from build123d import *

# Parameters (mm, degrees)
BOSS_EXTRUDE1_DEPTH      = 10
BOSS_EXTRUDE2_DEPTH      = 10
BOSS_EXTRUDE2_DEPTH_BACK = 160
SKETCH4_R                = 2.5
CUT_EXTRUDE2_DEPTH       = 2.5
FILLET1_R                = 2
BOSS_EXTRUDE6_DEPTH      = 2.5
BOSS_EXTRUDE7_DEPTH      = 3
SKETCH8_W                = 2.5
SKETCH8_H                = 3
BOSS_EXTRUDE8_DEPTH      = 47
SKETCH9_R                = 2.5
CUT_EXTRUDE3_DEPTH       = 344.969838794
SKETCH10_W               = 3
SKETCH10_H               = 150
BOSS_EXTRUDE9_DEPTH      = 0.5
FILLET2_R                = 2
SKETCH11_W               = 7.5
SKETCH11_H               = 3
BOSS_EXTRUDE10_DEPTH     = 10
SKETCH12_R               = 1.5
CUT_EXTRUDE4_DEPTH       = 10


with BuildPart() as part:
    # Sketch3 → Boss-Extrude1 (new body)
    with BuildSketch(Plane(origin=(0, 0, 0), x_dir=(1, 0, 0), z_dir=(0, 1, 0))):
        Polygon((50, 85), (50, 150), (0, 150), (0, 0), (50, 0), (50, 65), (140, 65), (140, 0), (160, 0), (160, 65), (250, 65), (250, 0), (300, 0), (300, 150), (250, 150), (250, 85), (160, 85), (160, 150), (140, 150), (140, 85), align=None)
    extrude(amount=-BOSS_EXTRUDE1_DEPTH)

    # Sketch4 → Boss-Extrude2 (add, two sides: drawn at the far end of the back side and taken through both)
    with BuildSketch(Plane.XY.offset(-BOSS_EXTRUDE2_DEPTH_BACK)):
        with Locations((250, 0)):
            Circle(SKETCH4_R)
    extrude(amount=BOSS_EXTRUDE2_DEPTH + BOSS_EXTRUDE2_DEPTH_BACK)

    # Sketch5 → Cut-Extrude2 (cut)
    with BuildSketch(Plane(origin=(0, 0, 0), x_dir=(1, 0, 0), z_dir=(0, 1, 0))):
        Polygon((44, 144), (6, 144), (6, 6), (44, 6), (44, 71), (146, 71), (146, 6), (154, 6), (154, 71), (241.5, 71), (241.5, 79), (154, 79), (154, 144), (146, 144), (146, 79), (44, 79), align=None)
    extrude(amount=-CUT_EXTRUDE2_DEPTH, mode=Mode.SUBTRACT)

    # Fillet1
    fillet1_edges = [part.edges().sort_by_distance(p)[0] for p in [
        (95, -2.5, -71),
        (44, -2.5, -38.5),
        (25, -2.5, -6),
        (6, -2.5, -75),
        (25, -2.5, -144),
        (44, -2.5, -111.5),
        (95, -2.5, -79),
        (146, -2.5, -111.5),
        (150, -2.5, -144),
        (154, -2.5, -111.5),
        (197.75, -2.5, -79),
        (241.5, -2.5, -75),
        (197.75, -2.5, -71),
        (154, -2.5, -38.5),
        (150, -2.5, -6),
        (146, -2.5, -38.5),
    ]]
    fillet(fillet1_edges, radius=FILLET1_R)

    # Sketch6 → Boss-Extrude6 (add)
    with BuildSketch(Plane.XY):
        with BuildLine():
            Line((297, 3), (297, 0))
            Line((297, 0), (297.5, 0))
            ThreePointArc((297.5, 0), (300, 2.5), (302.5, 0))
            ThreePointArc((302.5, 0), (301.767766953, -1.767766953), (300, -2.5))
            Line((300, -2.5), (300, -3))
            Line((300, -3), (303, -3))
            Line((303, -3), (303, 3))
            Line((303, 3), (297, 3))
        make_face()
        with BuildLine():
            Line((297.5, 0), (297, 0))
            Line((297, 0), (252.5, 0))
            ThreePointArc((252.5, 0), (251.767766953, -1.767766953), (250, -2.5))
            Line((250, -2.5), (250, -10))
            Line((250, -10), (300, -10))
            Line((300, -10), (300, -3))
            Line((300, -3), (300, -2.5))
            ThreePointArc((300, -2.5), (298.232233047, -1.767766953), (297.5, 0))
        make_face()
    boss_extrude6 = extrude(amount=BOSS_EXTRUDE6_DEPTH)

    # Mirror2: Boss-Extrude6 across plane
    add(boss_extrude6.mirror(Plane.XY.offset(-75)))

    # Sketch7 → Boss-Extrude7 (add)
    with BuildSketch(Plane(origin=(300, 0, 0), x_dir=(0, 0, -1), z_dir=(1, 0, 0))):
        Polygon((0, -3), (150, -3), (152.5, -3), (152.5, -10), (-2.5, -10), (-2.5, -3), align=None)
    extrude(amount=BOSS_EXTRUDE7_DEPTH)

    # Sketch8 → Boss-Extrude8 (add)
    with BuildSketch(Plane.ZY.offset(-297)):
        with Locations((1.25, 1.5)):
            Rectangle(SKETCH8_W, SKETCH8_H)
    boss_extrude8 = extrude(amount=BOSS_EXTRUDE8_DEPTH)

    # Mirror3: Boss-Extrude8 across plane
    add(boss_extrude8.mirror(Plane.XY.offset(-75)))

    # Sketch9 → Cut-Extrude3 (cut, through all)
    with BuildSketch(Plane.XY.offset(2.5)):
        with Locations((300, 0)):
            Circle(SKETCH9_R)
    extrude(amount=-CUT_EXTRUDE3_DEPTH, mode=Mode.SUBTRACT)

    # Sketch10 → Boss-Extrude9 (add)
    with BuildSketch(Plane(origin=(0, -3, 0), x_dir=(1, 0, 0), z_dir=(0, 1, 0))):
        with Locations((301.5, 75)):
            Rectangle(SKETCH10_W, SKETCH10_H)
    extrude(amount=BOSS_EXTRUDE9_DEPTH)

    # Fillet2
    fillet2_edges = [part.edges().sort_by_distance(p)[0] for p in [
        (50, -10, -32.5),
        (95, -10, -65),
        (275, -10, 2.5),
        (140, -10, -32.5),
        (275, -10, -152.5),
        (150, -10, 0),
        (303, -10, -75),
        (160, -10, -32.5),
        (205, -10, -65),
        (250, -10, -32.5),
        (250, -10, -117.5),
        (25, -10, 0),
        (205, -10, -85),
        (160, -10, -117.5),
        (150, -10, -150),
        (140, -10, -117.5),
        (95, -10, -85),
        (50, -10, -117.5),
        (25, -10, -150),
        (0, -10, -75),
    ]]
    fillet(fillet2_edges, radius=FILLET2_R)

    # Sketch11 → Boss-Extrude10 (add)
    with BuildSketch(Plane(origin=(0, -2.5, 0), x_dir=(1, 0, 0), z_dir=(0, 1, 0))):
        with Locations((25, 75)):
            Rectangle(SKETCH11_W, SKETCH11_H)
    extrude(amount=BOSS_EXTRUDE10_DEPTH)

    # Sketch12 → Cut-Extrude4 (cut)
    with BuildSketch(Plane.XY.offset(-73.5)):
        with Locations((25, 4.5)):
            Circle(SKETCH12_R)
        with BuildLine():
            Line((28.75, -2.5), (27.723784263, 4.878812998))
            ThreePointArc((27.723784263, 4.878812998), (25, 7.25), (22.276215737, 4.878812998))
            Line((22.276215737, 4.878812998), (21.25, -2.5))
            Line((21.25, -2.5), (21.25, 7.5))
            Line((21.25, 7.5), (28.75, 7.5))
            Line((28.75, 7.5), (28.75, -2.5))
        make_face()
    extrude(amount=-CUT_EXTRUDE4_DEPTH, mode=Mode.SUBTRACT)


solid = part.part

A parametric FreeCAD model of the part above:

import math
import FreeCAD as App
import Part
import Sketcher

V = App.Vector


def edges_at(feature, points):
    """Names of the edges that pass closest to the given points."""
    edges = feature.Shape.Edges
    near = lambda p: min(range(len(edges)), key=lambda i: edges[i].distToShape(Part.Vertex(*p))[0])
    return sorted({f"Edge{near(p) + 1}" for p in points})


def add_polygon(sketch, points):
    """Adds a closed chain of lines whose ends are joined by coincident constraints."""
    first, n = sketch.GeometryCount, len(points)
    for a, b in zip(points, points[1:] + points[:1]):
        sketch.addGeometry(Part.LineSegment(App.Vector(*a, 0), App.Vector(*b, 0)), False)
    for i in range(n):
        sketch.addConstraint(Sketcher.Constraint("Coincident", first + i, 2, first + (i + 1) % n, 1))

doc = App.newDocument("Part")
body = doc.addObject("PartDesign::Body", "Body")

sketch1 = doc.addObject("Sketcher::SketchObject", "Sketch")
body.addObject(sketch1)
sketch1.AttachmentSupport = (doc.XZ_Plane, [""])
sketch1.MapMode = "FlatFace"
add_polygon(sketch1, [(50, -85), (50, -150), (0, -150), (0, 0), (50, 0), (50, -65), (140, -65), (140, 0), (160, 0), (160, -65), (250, -65), (250, 0), (300, 0), (300, -150), (250, -150), (250, -85), (160, -85), (160, -150), (140, -150), (140, -85)])
sketch1.addConstraint([
    Sketcher.Constraint("Vertical", 0),
    Sketcher.Constraint("Horizontal", 1),
    Sketcher.Constraint("Vertical", 2),
    Sketcher.Constraint("Horizontal", 3),
    Sketcher.Constraint("Vertical", 4),
    Sketcher.Constraint("Horizontal", 5),
    Sketcher.Constraint("Vertical", 6),
    Sketcher.Constraint("Horizontal", 7),
    Sketcher.Constraint("Vertical", 8),
    Sketcher.Constraint("Horizontal", 9),
    Sketcher.Constraint("Vertical", 10),
    Sketcher.Constraint("Horizontal", 11),
    Sketcher.Constraint("Vertical", 12),
    Sketcher.Constraint("Horizontal", 13),
    Sketcher.Constraint("Vertical", 14),
    Sketcher.Constraint("Horizontal", 15),
    Sketcher.Constraint("Vertical", 16),
    Sketcher.Constraint("Horizontal", 17),
    Sketcher.Constraint("Vertical", 18),
    Sketcher.Constraint("Horizontal", 19),
    Sketcher.Constraint("Coincident", 2, 2, -1, 1),
    Sketcher.Constraint("PointOnObject", 6, 2, -1),
    Sketcher.Constraint("PointOnObject", 10, 2, -1),
    Sketcher.Constraint("Horizontal", 5, 2, 8, 2),
    Sketcher.Constraint("Horizontal", 1, 2, 12, 2),
    Sketcher.Constraint("Horizontal", 13, 2, 16, 2),
    Sketcher.Constraint("Horizontal", 15, 2, 18, 2),
    Sketcher.Constraint("Vertical", 0, 2, 3, 2),
    Sketcher.Constraint("Vertical", 10, 2, 13, 2),
    Sketcher.Constraint("Vertical", 8, 2, 15, 2),
    Sketcher.Constraint("Vertical", 6, 2, 17, 2),
    Sketcher.Constraint("Equal", 5, 9),
    Sketcher.Constraint("Equal", 3, 11),
    Sketcher.Constraint("Equal", 0, 4),
    Sketcher.Constraint("DistanceX", 1, 2, 1, 1, 50.0),
    Sketcher.Constraint("DistanceX", 5, 1, 5, 2, 90.0),
    Sketcher.Constraint("DistanceX", 7, 1, 7, 2, 20.0),
    Sketcher.Constraint("DistanceY", 0, 2, 0, 1, 65.0),
    Sketcher.Constraint("DistanceY", 2, 1, 2, 2, 150.0),
])
pad1 = doc.addObject("PartDesign::Pad", "Pad")
body.addObject(pad1)
pad1.Profile = sketch1
pad1.Length = 10

sketch2 = doc.addObject("Sketcher::SketchObject", "Sketch001")
body.addObject(sketch2)
sketch2.AttachmentSupport = (doc.XY_Plane, [""])
sketch2.MapMode = "FlatFace"
sketch2.addGeometry(Part.Circle(V(250, 0, 0), V(0, 0, 1), 2.5), False)
sketch2.addConstraint([
    Sketcher.Constraint("PointOnObject", 0, 3, -1),
    Sketcher.Constraint("Diameter", 0, 5.0),
    Sketcher.Constraint("DistanceX", -1, 1, 0, 3, 250.0),
])
pad2 = doc.addObject("PartDesign::Pad", "Pad001")
body.addObject(pad2)
pad2.Profile = sketch2
pad2.Type = "TwoLengths"
pad2.Length = 10
pad2.Length2 = 160

sketch3 = doc.addObject("Sketcher::SketchObject", "Sketch002")
body.addObject(sketch3)
sketch3.AttachmentSupport = (doc.XZ_Plane, [""])
sketch3.MapMode = "FlatFace"
add_polygon(sketch3, [(44, -144), (6, -144), (6, -6), (44, -6), (44, -71), (146, -71), (146, -6), (154, -6), (154, -71), (241.5, -71), (241.5, -79), (154, -79), (154, -144), (146, -144), (146, -79), (44, -79)])
sketch3.addConstraint([
    Sketcher.Constraint("Horizontal", 0),
    Sketcher.Constraint("Vertical", 1),
    Sketcher.Constraint("Horizontal", 2),
    Sketcher.Constraint("Vertical", 3),
    Sketcher.Constraint("Horizontal", 4),
    Sketcher.Constraint("Vertical", 5),
    Sketcher.Constraint("Horizontal", 6),
    Sketcher.Constraint("Vertical", 7),
    Sketcher.Constraint("Horizontal", 8),
    Sketcher.Constraint("Vertical", 9),
    Sketcher.Constraint("Horizontal", 10),
    Sketcher.Constraint("Vertical", 11),
    Sketcher.Constraint("Horizontal", 12),
    Sketcher.Constraint("Vertical", 13),
    Sketcher.Constraint("Horizontal", 14),
    Sketcher.Constraint("Vertical", 15),
    Sketcher.Constraint("Horizontal", 2, 2, 5, 2),
    Sketcher.Constraint("Horizontal", 4, 2, 7, 2),
    Sketcher.Constraint("Horizontal", 0, 2, 11, 2),
    Sketcher.Constraint("Horizontal", 10, 2, 13, 2),
    Sketcher.Constraint("Vertical", 7, 2, 10, 2),
    Sketcher.Constraint("Vertical", 5, 2, 12, 2),
    Sketcher.Constraint("Vertical", 3, 2, 14, 2),
    Sketcher.Constraint("Equal", 12, 9),
    Sketcher.Constraint("Equal", 7, 11),
    Sketcher.Constraint("DistanceX", 0, 2, 0, 1, 38.0),
    Sketcher.Constraint("DistanceX", 4, 1, 4, 2, 102.0),
    Sketcher.Constraint("DistanceX", 6, 1, 6, 2, 8.0),
    Sketcher.Constraint("DistanceY", 1, 1, 1, 2, 138.0),
    Sketcher.Constraint("DistanceX", 8, 1, 8, 2, 87.5),
    Sketcher.Constraint("DistanceX", -1, 1, 0, 2, 6.0),
    Sketcher.Constraint("DistanceY", 0, 2, -1, 1, 144.0),
])
pocket1 = doc.addObject("PartDesign::Pocket", "Pocket")
body.addObject(pocket1)
pocket1.Profile = sketch3
pocket1.Length = 2.5
pocket1.Reversed = True
doc.recompute()

fillet = doc.addObject("PartDesign::Fillet", "Fillet")
body.addObject(fillet)
fillet.Base = (pocket1, edges_at(pocket1, [
    (95, -2.5, -71),
    (44, -2.5, -38.5),
    (25, -2.5, -6),
    (6, -2.5, -75),
    (25, -2.5, -144),
    (44, -2.5, -111.5),
    (95, -2.5, -79),
    (146, -2.5, -111.5),
    (150, -2.5, -144),
    (154, -2.5, -111.5),
    (197.75, -2.5, -79),
    (241.5, -2.5, -75),
    (197.75, -2.5, -71),
    (154, -2.5, -38.5),
    (150, -2.5, -6),
    (146, -2.5, -38.5),
]))
fillet.Radius = 2

sketch4 = doc.addObject("Sketcher::SketchObject", "Sketch003")
body.addObject(sketch4)
sketch4.AttachmentSupport = (doc.XY_Plane, [""])
sketch4.MapMode = "FlatFace"
sketch4.addGeometry([
    Part.LineSegment(V(297, 3, 0), V(297, 0, 0)),
    Part.LineSegment(V(297, 0, 0), V(252.5, 0, 0)),
    Part.ArcOfCircle(Part.Circle(V(250, 0, 0), V(0, 0, 1), 2.5), math.radians(-90), math.radians(0)),
    Part.LineSegment(V(250, -2.5, 0), V(250, -10, 0)),
    Part.LineSegment(V(250, -10, 0), V(300, -10, 0)),
    Part.LineSegment(V(300, -10, 0), V(300, -3, 0)),
    Part.LineSegment(V(300, -3, 0), V(303, -3, 0)),
    Part.LineSegment(V(303, -3, 0), V(303, 3, 0)),
    Part.LineSegment(V(303, 3, 0), V(297, 3, 0)),
    Part.ArcOfCircle(Part.Circle(V(300, 0, 0), V(0, 0, 1), 2.5), math.radians(0), math.radians(180)),
    Part.ArcOfCircle(Part.Circle(V(300, 0, 0), V(0, 0, 1), 2.5), math.radians(-90), math.radians(0)),
    Part.ArcOfCircle(Part.Circle(V(300, 0, 0), V(0, 0, 1), 2.5), math.radians(180), math.radians(270)),
], False)
sketch4.addConstraint([
    Sketcher.Constraint("Coincident", 0, 2, 1, 1),
    Sketcher.Constraint("Coincident", 1, 2, 2, 2),
    Sketcher.Constraint("Coincident", 2, 1, 3, 1),
    Sketcher.Constraint("Coincident", 3, 2, 4, 1),
    Sketcher.Constraint("Coincident", 4, 2, 5, 1),
    Sketcher.Constraint("Coincident", 5, 2, 6, 1),
    Sketcher.Constraint("Coincident", 6, 2, 7, 1),
    Sketcher.Constraint("Coincident", 7, 2, 8, 1),
    Sketcher.Constraint("Coincident", 8, 2, 0, 1),
    Sketcher.Constraint("Tangent", 9, 1, 10, 2),
    Sketcher.Constraint("Tangent", 10, 1, 11, 2),
    Sketcher.Constraint("Tangent", 11, 1, 9, 2),
    Sketcher.Constraint("Vertical", 0),
    Sketcher.Constraint("Horizontal", 1),
    Sketcher.Constraint("Vertical", 3),
    Sketcher.Constraint("Horizontal", 4),
    Sketcher.Constraint("Vertical", 5),
    Sketcher.Constraint("Horizontal", 6),
    Sketcher.Constraint("Vertical", 7),
    Sketcher.Constraint("Horizontal", 8),
    Sketcher.Constraint("Equal", 2, 9),
    Sketcher.Constraint("PointOnObject", 2, 3, -1),
    Sketcher.Constraint("PointOnObject", 9, 3, -1),
    Sketcher.Constraint("PointOnObject", 0, 2, -1),
    Sketcher.Constraint("PointOnObject", 9, 1, -1),
    Sketcher.Constraint("PointOnObject", 11, 1, -1),
    Sketcher.Constraint("Vertical", 11, 3, 4, 2),
    Sketcher.Constraint("Vertical", 5, 2, 10, 1),
    Sketcher.Constraint("Equal", 6, 0),
    Sketcher.Constraint("Equal", 8, 7),
    Sketcher.Constraint("Radius", 2, 2.5),
    Sketcher.Constraint("DistanceX", 4, 1, 4, 2, 50.0),
    Sketcher.Constraint("DistanceX", 6, 1, 6, 2, 3.0),
    Sketcher.Constraint("DistanceX", 8, 2, 8, 1, 6.0),
    Sketcher.Constraint("DistanceY", 5, 1, 5, 2, 7.0),
    Sketcher.Constraint("DistanceX", 1, 2, 1, 1, 44.5),
    Sketcher.Constraint("DistanceX", -1, 1, 2, 3, 250.0),
])
pad3 = doc.addObject("PartDesign::Pad", "Pad002")
body.addObject(pad3)
pad3.Profile = sketch4
pad3.Length = 2.5
doc.recompute()

datumplane = doc.addObject("PartDesign::Plane", "DatumPlane")
body.addObject(datumplane)
datumplane.AttachmentSupport = (doc.XY_Plane, [""])
datumplane.MapMode = "FlatFace"
datumplane.AttachmentOffset = App.Placement(V(0, 0, -75), App.Rotation())
mirrored = doc.addObject("PartDesign::Mirrored", "Mirrored")
body.addObject(mirrored)
mirrored.Originals = [pad3]
mirrored.MirrorPlane = (datumplane, [""])
body.Tip = mirrored

sketch5 = doc.addObject("Sketcher::SketchObject", "Sketch004")
body.addObject(sketch5)
sketch5.AttachmentSupport = (doc.YZ_Plane, [""])
sketch5.MapMode = "FlatFace"
sketch5.AttachmentOffset = App.Placement(V(0, 0, 300), App.Rotation())
add_polygon(sketch5, [(-3, -152.5), (-3, 2.5), (-10, 2.5), (-10, -152.5)])
sketch5.addConstraint([
    Sketcher.Constraint("Vertical", 0),
    Sketcher.Constraint("Horizontal", 1),
    Sketcher.Constraint("Vertical", 2),
    Sketcher.Constraint("Horizontal", 3),
    Sketcher.Constraint("DistanceX", 1, 2, 1, 1, 7.0),
    Sketcher.Constraint("DistanceY", 0, 1, 0, 2, 155.0),
    Sketcher.Constraint("DistanceX", 0, 2, -1, 1, 3.0),
    Sketcher.Constraint("DistanceY", -1, 1, 0, 2, 2.5),
])
pad4 = doc.addObject("PartDesign::Pad", "Pad003")
body.addObject(pad4)
pad4.Profile = sketch5
pad4.Length = 3

sketch6 = doc.addObject("Sketcher::SketchObject", "Sketch005")
body.addObject(sketch6)
sketch6.AttachmentSupport = (doc.YZ_Plane, [""])
sketch6.MapMode = "FlatFace"
sketch6.AttachmentOffset = App.Placement(V(0, 0, 297), App.Rotation())
add_polygon(sketch6, [(3, 0), (0, 0), (0, 2.5), (3, 2.5)])
sketch6.addConstraint([
    Sketcher.Constraint("Horizontal", 0),
    Sketcher.Constraint("Vertical", 1),
    Sketcher.Constraint("Horizontal", 2),
    Sketcher.Constraint("Vertical", 3),
    Sketcher.Constraint("Coincident", 0, 2, -1, 1),
    Sketcher.Constraint("DistanceX", 0, 2, 0, 1, 3.0),
    Sketcher.Constraint("DistanceY", 1, 1, 1, 2, 2.5),
])
pad5 = doc.addObject("PartDesign::Pad", "Pad004")
body.addObject(pad5)
pad5.Profile = sketch6
pad5.Length = 47
pad5.Reversed = True
doc.recompute()

datumplane2 = doc.addObject("PartDesign::Plane", "DatumPlane001")
body.addObject(datumplane2)
datumplane2.AttachmentSupport = (doc.XY_Plane, [""])
datumplane2.MapMode = "FlatFace"
datumplane2.AttachmentOffset = App.Placement(V(0, 0, -75), App.Rotation())
mirrored2 = doc.addObject("PartDesign::Mirrored", "Mirrored001")
body.addObject(mirrored2)
mirrored2.Originals = [pad5]
mirrored2.MirrorPlane = (datumplane2, [""])
body.Tip = mirrored2

sketch7 = doc.addObject("Sketcher::SketchObject", "Sketch006")
body.addObject(sketch7)
sketch7.AttachmentSupport = (doc.XY_Plane, [""])
sketch7.MapMode = "FlatFace"
sketch7.AttachmentOffset = App.Placement(V(0, 0, 2.5), App.Rotation())
sketch7.addGeometry(Part.Circle(V(300, 0, 0), V(0, 0, 1), 2.5), False)
sketch7.addConstraint([
    Sketcher.Constraint("PointOnObject", 0, 3, -1),
    Sketcher.Constraint("Diameter", 0, 5.0),
    Sketcher.Constraint("DistanceX", -1, 1, 0, 3, 300.0),
])
pocket2 = doc.addObject("PartDesign::Pocket", "Pocket001")
body.addObject(pocket2)
pocket2.Profile = sketch7
pocket2.Type = "ThroughAll"

sketch8 = doc.addObject("Sketcher::SketchObject", "Sketch007")
body.addObject(sketch8)
sketch8.AttachmentSupport = (doc.XZ_Plane, [""])
sketch8.MapMode = "FlatFace"
sketch8.AttachmentOffset = App.Placement(V(0, 0, 3), App.Rotation())
add_polygon(sketch8, [(300, -150), (300, 0), (303, 0), (303, -150)])
sketch8.addConstraint([
    Sketcher.Constraint("Vertical", 0),
    Sketcher.Constraint("Horizontal", 1),
    Sketcher.Constraint("Vertical", 2),
    Sketcher.Constraint("Horizontal", 3),
    Sketcher.Constraint("PointOnObject", 0, 2, -1),
    Sketcher.Constraint("DistanceX", 1, 1, 1, 2, 3.0),
    Sketcher.Constraint("DistanceY", 0, 1, 0, 2, 150.0),
    Sketcher.Constraint("DistanceX", -1, 1, 0, 2, 300.0),
])
pad6 = doc.addObject("PartDesign::Pad", "Pad005")
body.addObject(pad6)
pad6.Profile = sketch8
pad6.Length = 0.5
pad6.Reversed = True
doc.recompute()

fillet2 = doc.addObject("PartDesign::Fillet", "Fillet001")
body.addObject(fillet2)
fillet2.Base = (pad6, edges_at(pad6, [
    (50, -10, -32.5),
    (95, -10, -65),
    (276.5, -10, 2.5),
    (140, -10, -32.5),
    (276.5, -10, -152.5),
    (150, -10, 0),
    (303, -10, -75),
    (160, -10, -32.5),
    (205, -10, -65),
    (250, -10, -31.25),
    (250, -10, -118.75),
    (25, -10, 0),
    (205, -10, -85),
    (160, -10, -117.5),
    (150, -10, -150),
    (140, -10, -117.5),
    (95, -10, -85),
    (50, -10, -117.5),
    (25, -10, -150),
    (0, -10, -75),
]))
fillet2.Radius = 2

sketch9 = doc.addObject("Sketcher::SketchObject", "Sketch008")
body.addObject(sketch9)
sketch9.AttachmentSupport = (doc.XZ_Plane, [""])
sketch9.MapMode = "FlatFace"
sketch9.AttachmentOffset = App.Placement(V(0, 0, 2.5), App.Rotation())
add_polygon(sketch9, [(21.25, -76.5), (21.25, -73.5), (28.75, -73.5), (28.75, -76.5)])
sketch9.addConstraint([
    Sketcher.Constraint("Vertical", 0),
    Sketcher.Constraint("Horizontal", 1),
    Sketcher.Constraint("Vertical", 2),
    Sketcher.Constraint("Horizontal", 3),
    Sketcher.Constraint("DistanceY", 0, 1, 0, 2, 3.0),
    Sketcher.Constraint("DistanceX", 1, 1, 1, 2, 7.5),
    Sketcher.Constraint("DistanceY", 0, 2, -1, 1, 73.5),
    Sketcher.Constraint("DistanceX", -1, 1, 0, 2, 21.25),
])
pad7 = doc.addObject("PartDesign::Pad", "Pad006")
body.addObject(pad7)
pad7.Profile = sketch9
pad7.Length = 10
pad7.Reversed = True

sketch10 = doc.addObject("Sketcher::SketchObject", "Sketch009")
body.addObject(sketch10)
sketch10.AttachmentSupport = (doc.XY_Plane, [""])
sketch10.MapMode = "FlatFace"
sketch10.AttachmentOffset = App.Placement(V(0, 0, -73.5), App.Rotation())
sketch10.addGeometry([
    Part.Circle(V(25, 4.5, 0), V(0, 0, 1), 1.5),
    Part.LineSegment(V(27.723784, 4.878813, 0), V(28.75, -2.5, 0)),
    Part.LineSegment(V(28.75, -2.5, 0), V(28.75, 7.5, 0)),
    Part.LineSegment(V(28.75, 7.5, 0), V(21.25, 7.5, 0)),
    Part.LineSegment(V(21.25, 7.5, 0), V(21.25, -2.5, 0)),
    Part.LineSegment(V(21.25, -2.5, 0), V(22.276216, 4.878813, 0)),
    Part.ArcOfCircle(Part.Circle(V(25, 4.5, 0), V(0, 0, 1), 2.75), math.radians(7.91768), math.radians(172.08232)),
], False)
sketch10.addConstraint([
    Sketcher.Constraint("Coincident", 1, 2, 2, 1),
    Sketcher.Constraint("Coincident", 2, 2, 3, 1),
    Sketcher.Constraint("Coincident", 3, 2, 4, 1),
    Sketcher.Constraint("Coincident", 4, 2, 5, 1),
    Sketcher.Constraint("Tangent", 5, 2, 6, 2),
    Sketcher.Constraint("Tangent", 6, 1, 1, 1),
    Sketcher.Constraint("Vertical", 2),
    Sketcher.Constraint("Horizontal", 3),
    Sketcher.Constraint("Vertical", 4),
    Sketcher.Constraint("Coincident", 6, 3, 0, 3),
    Sketcher.Constraint("Horizontal", 1, 2, 4, 2),
    Sketcher.Constraint("Horizontal", 5, 2, 6, 1),
    Sketcher.Constraint("Diameter", 0, 3.0),
    Sketcher.Constraint("DistanceY", 2, 1, 2, 2, 10.0),
    Sketcher.Constraint("Radius", 6, 2.75),
    Sketcher.Constraint("DistanceX", 3, 2, 3, 1, 7.5),
    Sketcher.Constraint("DistanceX", -1, 1, 0, 3, 25.0),
    Sketcher.Constraint("DistanceY", 1, 2, 0, 3, 7.0),
    Sketcher.Constraint("DistanceY", -1, 1, 0, 3, 4.5),
])
pocket3 = doc.addObject("PartDesign::Pocket", "Pocket002")
body.addObject(pocket3)
pocket3.Profile = sketch10
pocket3.Length = 10

doc.recompute()
